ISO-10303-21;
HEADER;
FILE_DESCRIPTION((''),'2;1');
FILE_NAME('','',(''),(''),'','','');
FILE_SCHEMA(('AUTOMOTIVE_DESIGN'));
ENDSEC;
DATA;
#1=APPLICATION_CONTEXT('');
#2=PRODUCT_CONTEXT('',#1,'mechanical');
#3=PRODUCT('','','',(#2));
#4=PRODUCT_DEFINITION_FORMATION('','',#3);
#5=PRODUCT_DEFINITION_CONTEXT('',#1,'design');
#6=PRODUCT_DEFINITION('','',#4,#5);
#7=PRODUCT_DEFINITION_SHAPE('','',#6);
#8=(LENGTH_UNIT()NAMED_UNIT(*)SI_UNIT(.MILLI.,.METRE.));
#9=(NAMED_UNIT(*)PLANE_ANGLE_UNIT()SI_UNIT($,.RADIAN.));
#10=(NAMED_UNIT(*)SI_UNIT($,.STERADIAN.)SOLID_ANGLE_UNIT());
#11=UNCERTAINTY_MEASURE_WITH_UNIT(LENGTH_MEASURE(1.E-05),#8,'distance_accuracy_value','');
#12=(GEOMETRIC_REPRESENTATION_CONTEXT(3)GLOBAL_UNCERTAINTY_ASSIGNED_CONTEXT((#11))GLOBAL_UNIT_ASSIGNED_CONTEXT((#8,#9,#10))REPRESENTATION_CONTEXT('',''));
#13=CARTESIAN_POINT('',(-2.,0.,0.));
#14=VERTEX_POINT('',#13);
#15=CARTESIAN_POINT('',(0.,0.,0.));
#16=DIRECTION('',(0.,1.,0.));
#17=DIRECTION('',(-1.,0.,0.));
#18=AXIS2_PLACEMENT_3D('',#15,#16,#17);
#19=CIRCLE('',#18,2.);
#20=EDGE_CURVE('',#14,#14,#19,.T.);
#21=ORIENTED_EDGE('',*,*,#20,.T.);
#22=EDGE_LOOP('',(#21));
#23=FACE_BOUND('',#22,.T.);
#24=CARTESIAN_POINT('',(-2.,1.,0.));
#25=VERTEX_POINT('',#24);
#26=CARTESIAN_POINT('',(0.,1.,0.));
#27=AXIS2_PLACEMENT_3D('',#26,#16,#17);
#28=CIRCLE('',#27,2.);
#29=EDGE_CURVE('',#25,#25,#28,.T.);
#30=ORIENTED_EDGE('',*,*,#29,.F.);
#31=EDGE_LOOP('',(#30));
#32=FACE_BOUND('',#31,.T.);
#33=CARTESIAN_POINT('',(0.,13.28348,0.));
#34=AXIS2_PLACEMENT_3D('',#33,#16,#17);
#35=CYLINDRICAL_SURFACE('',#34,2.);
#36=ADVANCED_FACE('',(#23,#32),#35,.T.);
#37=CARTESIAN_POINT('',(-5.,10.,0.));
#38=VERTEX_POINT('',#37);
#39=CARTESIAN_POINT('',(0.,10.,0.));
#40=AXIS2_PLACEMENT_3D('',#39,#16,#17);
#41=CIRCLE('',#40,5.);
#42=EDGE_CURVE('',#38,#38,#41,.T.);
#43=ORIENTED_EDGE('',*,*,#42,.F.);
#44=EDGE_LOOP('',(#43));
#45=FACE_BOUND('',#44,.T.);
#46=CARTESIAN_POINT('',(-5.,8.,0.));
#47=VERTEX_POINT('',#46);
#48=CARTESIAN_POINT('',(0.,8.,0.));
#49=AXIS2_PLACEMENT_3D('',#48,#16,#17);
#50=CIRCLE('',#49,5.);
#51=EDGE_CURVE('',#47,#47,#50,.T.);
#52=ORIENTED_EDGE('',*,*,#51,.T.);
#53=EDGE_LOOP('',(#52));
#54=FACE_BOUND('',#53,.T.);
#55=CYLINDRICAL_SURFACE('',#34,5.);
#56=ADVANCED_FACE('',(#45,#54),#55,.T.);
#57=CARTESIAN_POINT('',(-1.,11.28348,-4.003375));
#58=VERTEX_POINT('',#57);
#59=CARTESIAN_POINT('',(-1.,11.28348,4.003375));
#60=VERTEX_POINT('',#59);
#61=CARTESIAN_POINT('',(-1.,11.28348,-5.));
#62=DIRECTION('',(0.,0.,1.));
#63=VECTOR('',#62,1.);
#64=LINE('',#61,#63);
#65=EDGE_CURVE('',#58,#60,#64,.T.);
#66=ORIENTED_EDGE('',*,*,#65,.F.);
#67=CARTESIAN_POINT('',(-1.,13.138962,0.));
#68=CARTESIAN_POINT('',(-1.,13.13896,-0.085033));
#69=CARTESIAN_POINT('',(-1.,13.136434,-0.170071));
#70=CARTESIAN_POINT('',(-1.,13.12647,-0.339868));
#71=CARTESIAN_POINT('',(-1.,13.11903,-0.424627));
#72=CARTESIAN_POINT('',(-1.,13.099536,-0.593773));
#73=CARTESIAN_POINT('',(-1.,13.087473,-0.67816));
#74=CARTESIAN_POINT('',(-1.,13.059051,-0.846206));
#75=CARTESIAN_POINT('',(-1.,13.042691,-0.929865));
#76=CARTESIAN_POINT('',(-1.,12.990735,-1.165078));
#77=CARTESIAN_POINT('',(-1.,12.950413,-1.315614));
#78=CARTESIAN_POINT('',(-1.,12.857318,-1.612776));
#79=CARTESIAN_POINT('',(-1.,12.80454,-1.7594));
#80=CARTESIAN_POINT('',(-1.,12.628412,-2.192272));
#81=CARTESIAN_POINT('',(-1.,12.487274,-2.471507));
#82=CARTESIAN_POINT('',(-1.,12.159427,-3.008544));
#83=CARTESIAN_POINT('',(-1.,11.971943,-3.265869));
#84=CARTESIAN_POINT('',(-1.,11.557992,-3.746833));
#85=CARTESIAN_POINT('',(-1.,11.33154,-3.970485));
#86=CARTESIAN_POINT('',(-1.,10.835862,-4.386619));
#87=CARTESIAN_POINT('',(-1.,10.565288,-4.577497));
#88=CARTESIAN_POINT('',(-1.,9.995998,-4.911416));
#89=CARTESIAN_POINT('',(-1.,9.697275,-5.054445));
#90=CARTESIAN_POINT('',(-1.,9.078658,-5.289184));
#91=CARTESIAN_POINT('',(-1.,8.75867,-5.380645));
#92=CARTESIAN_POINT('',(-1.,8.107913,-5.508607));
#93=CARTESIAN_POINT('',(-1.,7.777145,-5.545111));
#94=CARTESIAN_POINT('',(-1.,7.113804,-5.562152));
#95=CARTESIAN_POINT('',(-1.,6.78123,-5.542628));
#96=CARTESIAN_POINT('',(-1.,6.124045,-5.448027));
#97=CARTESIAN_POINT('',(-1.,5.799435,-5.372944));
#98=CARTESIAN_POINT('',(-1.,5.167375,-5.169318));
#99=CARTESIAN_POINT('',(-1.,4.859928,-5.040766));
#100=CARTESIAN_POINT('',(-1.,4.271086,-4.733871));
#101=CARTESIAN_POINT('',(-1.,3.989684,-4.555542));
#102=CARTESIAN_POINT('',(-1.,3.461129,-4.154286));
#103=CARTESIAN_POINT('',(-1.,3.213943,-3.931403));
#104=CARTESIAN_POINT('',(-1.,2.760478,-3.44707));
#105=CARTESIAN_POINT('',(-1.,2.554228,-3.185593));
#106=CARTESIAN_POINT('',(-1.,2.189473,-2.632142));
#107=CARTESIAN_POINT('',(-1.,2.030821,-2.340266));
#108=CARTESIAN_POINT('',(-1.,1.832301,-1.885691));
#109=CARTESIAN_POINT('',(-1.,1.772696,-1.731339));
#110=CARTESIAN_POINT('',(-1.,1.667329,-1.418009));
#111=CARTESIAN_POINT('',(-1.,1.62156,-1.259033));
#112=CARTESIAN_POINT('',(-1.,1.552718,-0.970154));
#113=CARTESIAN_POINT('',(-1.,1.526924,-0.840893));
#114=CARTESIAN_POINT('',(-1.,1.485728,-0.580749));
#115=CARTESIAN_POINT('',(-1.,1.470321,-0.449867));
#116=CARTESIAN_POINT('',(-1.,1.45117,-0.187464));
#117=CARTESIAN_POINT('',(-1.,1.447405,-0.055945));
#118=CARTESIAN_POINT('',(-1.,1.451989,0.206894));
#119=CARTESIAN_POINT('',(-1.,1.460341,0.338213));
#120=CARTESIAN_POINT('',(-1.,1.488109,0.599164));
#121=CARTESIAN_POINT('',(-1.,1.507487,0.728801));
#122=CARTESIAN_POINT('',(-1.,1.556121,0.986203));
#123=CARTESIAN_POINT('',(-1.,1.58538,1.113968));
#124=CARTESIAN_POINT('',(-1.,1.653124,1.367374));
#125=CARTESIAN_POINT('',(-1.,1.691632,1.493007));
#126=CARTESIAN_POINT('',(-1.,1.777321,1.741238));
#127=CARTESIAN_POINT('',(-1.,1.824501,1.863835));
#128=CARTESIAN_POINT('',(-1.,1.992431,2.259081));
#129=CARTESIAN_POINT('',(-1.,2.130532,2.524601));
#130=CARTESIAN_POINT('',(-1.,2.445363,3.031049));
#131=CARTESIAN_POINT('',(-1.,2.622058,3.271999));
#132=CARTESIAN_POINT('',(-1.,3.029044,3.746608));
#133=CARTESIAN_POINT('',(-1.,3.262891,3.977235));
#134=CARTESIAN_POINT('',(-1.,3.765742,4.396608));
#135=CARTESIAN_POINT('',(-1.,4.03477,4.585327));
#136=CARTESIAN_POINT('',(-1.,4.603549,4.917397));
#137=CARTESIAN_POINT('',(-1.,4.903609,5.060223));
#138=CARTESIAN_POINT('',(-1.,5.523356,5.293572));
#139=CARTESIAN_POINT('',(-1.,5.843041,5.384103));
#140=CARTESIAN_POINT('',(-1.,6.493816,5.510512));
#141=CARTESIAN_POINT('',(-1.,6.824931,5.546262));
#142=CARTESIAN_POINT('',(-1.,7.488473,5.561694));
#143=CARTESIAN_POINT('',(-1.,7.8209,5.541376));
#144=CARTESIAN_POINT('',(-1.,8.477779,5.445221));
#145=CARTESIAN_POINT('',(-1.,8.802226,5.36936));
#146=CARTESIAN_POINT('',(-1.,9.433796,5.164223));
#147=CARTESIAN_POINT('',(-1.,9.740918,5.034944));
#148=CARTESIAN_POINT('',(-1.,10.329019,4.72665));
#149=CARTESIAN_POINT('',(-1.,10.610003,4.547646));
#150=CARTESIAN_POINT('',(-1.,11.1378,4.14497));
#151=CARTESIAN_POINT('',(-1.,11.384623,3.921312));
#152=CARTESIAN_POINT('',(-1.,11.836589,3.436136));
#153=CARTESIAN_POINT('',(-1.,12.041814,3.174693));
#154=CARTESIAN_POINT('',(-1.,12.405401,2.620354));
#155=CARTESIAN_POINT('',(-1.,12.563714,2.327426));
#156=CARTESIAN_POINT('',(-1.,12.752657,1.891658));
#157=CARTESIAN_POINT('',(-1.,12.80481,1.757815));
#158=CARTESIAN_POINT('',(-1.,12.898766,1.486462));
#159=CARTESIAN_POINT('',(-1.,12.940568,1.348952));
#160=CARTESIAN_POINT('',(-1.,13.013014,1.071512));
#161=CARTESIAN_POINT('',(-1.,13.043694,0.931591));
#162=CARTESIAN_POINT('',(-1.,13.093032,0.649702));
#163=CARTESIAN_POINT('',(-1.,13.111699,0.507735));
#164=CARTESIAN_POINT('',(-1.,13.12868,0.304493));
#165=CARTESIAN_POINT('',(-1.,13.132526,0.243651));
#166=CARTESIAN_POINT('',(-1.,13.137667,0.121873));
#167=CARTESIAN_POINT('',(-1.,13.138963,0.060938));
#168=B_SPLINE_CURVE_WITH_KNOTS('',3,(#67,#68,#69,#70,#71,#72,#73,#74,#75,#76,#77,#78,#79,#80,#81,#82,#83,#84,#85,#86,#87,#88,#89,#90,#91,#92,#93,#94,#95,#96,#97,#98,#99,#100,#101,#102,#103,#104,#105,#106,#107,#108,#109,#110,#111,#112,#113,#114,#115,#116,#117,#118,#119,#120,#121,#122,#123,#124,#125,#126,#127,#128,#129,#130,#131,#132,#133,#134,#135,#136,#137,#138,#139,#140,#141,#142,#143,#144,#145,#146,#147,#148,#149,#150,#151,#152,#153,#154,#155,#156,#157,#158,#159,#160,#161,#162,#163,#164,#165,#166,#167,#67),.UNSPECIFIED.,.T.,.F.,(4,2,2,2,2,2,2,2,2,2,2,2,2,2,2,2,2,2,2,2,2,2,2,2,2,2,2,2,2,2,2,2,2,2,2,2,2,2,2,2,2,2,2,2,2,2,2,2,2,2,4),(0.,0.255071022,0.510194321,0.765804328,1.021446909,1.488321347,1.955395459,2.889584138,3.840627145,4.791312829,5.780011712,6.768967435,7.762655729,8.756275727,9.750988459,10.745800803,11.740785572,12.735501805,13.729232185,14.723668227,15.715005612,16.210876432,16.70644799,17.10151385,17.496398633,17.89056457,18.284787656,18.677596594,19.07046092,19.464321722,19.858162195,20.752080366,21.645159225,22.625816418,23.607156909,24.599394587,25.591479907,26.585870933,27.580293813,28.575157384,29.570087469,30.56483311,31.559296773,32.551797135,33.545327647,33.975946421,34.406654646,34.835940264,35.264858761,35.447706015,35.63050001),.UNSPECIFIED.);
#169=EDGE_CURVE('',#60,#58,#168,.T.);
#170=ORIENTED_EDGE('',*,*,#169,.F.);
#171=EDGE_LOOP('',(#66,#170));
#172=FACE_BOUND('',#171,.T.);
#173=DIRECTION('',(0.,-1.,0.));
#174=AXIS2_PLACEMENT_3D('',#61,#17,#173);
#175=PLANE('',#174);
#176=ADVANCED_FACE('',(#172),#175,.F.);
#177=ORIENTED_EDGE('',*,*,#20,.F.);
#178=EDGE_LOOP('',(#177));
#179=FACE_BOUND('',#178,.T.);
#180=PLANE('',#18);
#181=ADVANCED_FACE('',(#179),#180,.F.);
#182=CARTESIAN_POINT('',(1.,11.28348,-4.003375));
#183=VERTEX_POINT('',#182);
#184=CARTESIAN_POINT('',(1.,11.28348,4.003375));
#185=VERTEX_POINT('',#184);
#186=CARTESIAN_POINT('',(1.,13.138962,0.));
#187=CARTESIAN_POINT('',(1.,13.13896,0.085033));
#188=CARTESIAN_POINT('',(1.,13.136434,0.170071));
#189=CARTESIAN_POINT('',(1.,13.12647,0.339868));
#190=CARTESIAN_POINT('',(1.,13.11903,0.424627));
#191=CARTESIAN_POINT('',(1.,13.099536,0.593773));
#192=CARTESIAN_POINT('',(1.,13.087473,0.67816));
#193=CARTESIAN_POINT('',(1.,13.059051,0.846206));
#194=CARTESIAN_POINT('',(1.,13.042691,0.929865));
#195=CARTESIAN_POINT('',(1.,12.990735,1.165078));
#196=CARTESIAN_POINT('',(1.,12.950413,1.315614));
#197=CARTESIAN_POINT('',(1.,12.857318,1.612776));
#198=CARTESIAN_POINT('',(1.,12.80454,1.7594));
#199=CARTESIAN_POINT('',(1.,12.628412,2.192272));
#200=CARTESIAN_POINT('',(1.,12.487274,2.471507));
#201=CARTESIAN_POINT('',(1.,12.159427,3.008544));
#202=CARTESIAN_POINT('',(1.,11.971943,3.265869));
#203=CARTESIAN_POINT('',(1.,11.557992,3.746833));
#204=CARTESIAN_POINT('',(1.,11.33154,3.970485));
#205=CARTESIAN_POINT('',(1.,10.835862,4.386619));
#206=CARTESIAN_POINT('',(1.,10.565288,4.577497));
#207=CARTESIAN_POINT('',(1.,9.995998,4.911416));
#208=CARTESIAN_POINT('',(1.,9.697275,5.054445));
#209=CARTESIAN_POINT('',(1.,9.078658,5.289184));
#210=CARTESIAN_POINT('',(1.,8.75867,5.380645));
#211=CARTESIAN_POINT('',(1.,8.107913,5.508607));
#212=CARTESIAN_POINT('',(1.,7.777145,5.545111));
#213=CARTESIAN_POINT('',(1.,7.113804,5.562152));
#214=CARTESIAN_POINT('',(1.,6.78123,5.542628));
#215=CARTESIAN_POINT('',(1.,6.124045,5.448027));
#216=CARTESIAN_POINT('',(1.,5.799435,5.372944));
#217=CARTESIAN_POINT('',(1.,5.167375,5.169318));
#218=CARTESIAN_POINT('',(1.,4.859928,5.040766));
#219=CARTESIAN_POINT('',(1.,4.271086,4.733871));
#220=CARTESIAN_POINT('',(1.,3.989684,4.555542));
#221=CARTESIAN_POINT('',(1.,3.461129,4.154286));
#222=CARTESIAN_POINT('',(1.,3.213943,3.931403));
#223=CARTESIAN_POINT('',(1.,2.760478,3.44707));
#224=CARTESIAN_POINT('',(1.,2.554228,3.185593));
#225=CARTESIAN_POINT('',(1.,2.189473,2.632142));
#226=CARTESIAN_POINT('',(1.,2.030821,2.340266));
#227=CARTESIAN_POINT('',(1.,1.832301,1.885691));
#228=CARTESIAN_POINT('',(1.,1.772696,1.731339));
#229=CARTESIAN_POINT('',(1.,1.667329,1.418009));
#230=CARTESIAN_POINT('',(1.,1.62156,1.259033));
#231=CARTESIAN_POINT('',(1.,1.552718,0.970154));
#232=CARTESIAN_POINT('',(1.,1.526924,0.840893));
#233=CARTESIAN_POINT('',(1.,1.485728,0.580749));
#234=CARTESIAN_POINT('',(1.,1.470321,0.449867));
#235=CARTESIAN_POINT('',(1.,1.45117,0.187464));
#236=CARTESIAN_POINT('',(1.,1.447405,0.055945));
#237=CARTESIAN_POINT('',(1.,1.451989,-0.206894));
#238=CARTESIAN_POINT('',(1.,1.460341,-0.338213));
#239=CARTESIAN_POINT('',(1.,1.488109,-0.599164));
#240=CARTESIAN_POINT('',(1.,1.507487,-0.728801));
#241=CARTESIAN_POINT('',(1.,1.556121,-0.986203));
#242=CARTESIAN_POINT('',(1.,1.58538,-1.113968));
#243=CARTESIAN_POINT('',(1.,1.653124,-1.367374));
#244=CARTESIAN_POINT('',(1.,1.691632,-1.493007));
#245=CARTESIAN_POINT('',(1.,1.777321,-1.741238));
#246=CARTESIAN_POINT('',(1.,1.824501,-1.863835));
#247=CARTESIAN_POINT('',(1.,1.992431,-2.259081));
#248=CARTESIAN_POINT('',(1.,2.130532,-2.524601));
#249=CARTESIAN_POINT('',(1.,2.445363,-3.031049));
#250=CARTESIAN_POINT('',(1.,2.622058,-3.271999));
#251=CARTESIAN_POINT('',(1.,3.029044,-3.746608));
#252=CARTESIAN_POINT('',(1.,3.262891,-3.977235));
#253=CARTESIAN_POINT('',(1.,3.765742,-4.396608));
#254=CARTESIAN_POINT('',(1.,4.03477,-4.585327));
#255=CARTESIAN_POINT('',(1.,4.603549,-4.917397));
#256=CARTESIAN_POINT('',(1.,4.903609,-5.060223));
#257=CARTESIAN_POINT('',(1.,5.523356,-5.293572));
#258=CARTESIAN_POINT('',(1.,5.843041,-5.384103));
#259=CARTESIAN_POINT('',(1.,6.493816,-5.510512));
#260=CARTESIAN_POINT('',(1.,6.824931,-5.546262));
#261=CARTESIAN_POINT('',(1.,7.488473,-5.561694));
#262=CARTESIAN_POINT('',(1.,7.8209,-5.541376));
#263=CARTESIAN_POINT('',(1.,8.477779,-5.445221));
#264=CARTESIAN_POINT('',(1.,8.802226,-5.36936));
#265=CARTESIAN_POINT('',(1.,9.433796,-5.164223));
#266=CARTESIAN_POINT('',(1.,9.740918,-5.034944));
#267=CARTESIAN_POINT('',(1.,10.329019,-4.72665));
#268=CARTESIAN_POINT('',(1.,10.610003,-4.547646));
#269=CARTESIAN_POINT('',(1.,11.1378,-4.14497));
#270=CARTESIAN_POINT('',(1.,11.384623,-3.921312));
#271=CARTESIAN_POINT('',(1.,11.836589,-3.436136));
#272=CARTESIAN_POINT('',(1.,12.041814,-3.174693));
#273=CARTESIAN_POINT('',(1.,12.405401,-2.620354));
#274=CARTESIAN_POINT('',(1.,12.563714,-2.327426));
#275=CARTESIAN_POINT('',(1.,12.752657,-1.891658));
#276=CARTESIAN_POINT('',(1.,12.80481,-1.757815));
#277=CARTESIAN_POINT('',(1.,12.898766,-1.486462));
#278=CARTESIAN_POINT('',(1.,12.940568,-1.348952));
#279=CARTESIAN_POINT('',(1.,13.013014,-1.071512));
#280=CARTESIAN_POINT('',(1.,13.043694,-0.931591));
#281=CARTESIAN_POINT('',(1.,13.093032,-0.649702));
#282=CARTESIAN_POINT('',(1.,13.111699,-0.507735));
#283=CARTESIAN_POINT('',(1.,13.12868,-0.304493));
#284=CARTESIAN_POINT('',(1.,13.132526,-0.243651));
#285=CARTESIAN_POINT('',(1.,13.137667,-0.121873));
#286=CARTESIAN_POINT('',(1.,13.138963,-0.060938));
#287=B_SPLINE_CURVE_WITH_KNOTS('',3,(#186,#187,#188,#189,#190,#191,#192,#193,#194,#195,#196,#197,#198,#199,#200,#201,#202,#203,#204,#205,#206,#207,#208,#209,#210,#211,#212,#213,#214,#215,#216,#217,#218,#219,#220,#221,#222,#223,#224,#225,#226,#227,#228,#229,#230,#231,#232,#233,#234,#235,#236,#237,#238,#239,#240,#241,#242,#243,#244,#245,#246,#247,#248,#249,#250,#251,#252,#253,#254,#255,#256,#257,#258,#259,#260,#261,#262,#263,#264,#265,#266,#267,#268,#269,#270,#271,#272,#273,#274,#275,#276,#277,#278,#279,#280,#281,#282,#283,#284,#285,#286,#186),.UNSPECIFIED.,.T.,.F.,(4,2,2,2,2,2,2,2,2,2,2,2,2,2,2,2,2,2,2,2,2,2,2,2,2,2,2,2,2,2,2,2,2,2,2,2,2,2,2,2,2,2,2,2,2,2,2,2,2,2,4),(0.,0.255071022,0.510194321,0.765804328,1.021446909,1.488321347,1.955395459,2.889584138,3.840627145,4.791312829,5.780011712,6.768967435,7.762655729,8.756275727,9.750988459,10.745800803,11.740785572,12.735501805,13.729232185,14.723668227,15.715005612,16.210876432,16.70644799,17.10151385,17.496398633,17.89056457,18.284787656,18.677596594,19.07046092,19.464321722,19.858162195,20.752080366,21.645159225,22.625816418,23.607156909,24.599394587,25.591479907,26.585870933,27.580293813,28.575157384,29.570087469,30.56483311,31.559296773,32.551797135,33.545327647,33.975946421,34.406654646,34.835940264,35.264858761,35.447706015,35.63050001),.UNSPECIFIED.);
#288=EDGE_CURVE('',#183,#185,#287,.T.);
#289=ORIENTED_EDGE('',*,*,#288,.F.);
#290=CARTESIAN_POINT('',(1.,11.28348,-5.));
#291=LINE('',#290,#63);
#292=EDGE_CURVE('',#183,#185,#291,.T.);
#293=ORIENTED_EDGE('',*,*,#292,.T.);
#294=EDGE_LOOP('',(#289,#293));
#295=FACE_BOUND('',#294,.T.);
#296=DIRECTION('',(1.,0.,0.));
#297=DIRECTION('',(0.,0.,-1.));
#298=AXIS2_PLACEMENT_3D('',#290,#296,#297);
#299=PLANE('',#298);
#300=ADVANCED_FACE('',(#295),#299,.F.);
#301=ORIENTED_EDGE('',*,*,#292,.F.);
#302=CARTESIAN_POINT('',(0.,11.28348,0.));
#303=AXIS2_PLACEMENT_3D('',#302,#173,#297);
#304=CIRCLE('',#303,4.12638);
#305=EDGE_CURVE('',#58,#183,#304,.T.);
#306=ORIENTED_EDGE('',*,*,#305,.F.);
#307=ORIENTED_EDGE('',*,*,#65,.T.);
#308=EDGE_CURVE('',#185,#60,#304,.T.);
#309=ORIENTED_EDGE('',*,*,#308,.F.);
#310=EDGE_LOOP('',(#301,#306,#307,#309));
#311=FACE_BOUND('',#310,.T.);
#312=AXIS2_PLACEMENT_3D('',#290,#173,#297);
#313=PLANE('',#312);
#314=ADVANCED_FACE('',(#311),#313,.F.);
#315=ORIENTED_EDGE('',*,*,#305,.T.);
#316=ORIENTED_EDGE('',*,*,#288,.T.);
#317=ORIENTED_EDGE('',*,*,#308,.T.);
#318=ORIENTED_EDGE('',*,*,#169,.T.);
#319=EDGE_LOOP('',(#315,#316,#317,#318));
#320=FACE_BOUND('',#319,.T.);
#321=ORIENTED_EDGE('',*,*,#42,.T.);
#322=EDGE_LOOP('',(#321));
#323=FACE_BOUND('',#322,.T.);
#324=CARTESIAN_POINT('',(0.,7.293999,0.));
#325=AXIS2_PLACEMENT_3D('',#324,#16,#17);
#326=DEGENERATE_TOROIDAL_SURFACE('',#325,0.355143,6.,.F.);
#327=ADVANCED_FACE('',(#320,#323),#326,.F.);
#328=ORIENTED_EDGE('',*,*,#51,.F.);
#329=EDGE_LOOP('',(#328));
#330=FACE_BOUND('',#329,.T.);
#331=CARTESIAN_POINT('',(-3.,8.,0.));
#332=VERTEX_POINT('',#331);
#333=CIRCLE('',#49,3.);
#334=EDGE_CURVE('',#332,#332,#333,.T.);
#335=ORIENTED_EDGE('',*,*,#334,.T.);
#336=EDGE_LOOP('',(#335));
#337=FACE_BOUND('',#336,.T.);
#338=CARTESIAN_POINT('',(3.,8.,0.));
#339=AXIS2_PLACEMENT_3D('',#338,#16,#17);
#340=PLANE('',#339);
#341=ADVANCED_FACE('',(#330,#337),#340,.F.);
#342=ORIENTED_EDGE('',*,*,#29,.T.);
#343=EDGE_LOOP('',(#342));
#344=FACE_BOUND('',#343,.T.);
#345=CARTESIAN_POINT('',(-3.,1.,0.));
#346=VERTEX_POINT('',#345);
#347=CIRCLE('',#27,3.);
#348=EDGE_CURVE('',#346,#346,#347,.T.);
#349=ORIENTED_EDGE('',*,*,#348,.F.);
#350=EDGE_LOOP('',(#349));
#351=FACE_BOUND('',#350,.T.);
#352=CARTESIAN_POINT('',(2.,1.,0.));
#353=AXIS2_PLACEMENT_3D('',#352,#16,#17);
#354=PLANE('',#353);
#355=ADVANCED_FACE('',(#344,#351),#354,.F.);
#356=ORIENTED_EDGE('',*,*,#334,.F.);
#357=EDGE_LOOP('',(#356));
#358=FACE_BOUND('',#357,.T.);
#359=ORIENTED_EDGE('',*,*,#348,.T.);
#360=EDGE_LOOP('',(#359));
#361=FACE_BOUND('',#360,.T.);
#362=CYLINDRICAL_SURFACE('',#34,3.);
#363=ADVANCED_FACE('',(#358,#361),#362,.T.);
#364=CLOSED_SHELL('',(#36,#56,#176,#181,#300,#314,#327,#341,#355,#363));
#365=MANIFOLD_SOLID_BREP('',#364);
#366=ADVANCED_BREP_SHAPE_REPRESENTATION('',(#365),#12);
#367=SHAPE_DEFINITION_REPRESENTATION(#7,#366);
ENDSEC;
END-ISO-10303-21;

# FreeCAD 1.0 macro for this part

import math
import FreeCAD as App
import Part
import Sketcher
Q = App.Units.Quantity


def add_polygon(sketch, points):
    """Adds a closed chain of lines whose ends are joined by coincident constraints."""
    first, n = sketch.GeometryCount, len(points)
    for a, b in zip(points, points[1:] + points[:1]):
        sketch.addGeometry(Part.LineSegment(App.Vector(*a, 0), App.Vector(*b, 0)), False)
    for i in range(n):
        sketch.addConstraint(Sketcher.Constraint("Coincident", first + i, 2, first + (i + 1) % n, 1))

doc = App.newDocument("Part")
body = doc.addObject("PartDesign::Body", "Body")

sketch1 = doc.addObject("Sketcher::SketchObject", "Sketch")
body.addObject(sketch1)
sketch1.AttachmentSupport = (doc.XY_Plane, [""])
sketch1.MapMode = "FlatFace"
sketch1.addGeometry(Part.LineSegment(App.Vector(0, 0, 0), App.Vector(2, 0, 0)), False)
sketch1.addGeometry(Part.LineSegment(App.Vector(2, 0, 0), App.Vector(2, 1, 0)), False)
sketch1.addGeometry(Part.LineSegment(App.Vector(2, 1, 0), App.Vector(3, 1, 0)), False)
sketch1.addGeometry(Part.LineSegment(App.Vector(3, 1, 0), App.Vector(3, 8, 0)), False)
sketch1.addGeometry(Part.LineSegment(App.Vector(3, 8, 0), App.Vector(5, 8, 0)), False)
sketch1.addGeometry(Part.LineSegment(App.Vector(5, 8, 0), App.Vector(5, 10, 0)), False)
sketch1.addGeometry(Part.ArcOfCircle(Part.Circle(App.Vector(-0.4, 7.3, 0), App.Vector(0, 0, 1), 6), math.radians(27), math.radians(87)), False)
sketch1.addGeometry(Part.LineSegment(App.Vector(0, 13.3, 0), App.Vector(0, 0, 0)), False)
sketch1.addConstraint(Sketcher.Constraint("Coincident", 0, 2, 1, 1))
sketch1.addConstraint(Sketcher.Constraint("Coincident", 1, 2, 2, 1))
sketch1.addConstraint(Sketcher.Constraint("Coincident", 2, 2, 3, 1))
sketch1.addConstraint(Sketcher.Constraint("Coincident", 3, 2, 4, 1))
sketch1.addConstraint(Sketcher.Constraint("Coincident", 4, 2, 5, 1))
sketch1.addConstraint(Sketcher.Constraint("Coincident", 5, 2, 6, 1))
sketch1.addConstraint(Sketcher.Constraint("Coincident", 6, 2, 7, 1))
sketch1.addConstraint(Sketcher.Constraint("Coincident", 7, 2, 0, 1))
sketch1.addConstraint(Sketcher.Constraint("Horizontal", 0))
sketch1.addConstraint(Sketcher.Constraint("Vertical", 1))
sketch1.addConstraint(Sketcher.Constraint("Horizontal", 2))
sketch1.addConstraint(Sketcher.Constraint("Vertical", 3))
sketch1.addConstraint(Sketcher.Constraint("Horizontal", 4))
sketch1.addConstraint(Sketcher.Constraint("Vertical", 5))
sketch1.addConstraint(Sketcher.Constraint("Vertical", 7))
sketch1.addConstraint(Sketcher.Constraint("Coincident", 7, 2, -1, 1))
sketch1.addConstraint(Sketcher.Constraint("Equal", 0, 4))
sketch1.addConstraint(Sketcher.Constraint("Equal", 2, 1))
sketch1.addConstraint(Sketcher.Constraint("Equal", 4, 5))
sketch1.addConstraint(Sketcher.Constraint("Radius", 6, Q("6 mm")))
sketch1.addConstraint(Sketcher.Constraint("DistanceX", 0, 1, 0, 2, Q("2 mm")))
sketch1.addConstraint(Sketcher.Constraint("DistanceX", 2, 1, 2, 2, Q("1 mm")))
sketch1.addConstraint(Sketcher.Constraint("DistanceY", 3, 1, 3, 2, Q("7 mm")))
sketch1.addConstraint(Sketcher.Constraint("DistanceY", -1, 1, 6, 3, Q("7.293999 mm")))
revolution = doc.addObject("PartDesign::Revolution", "Revolution")
body.addObject(revolution)
revolution.Profile = sketch1
revolution.ReferenceAxis = (sketch1, ["V_Axis"])
revolution.Angle = 360

sketch2 = doc.addObject("Sketcher::SketchObject", "Sketch001")
body.addObject(sketch2)
sketch2.AttachmentSupport = (doc.XY_Plane, [""])
sketch2.MapMode = "FlatFace"
add_polygon(sketch2, [(-1, 15.3), (-1, 11.3), (1, 11.3), (1, 15.3)])
sketch2.addConstraint(Sketcher.Constraint("Vertical", 0))
sketch2.addConstraint(Sketcher.Constraint("Horizontal", 1))
sketch2.addConstraint(Sketcher.Constraint("Vertical", 2))
sketch2.addConstraint(Sketcher.Constraint("Horizontal", 3))
sketch2.addConstraint(Sketcher.Constraint("DistanceX", 1, 1, 1, 2, Q("2 mm")))
sketch2.addConstraint(Sketcher.Constraint("DistanceY", 0, 2, 0, 1, Q("4 mm")))
sketch2.addConstraint(Sketcher.Constraint("DistanceX", 0, 2, -1, 1, Q("1 mm")))
sketch2.addConstraint(Sketcher.Constraint("DistanceY", -1, 1, 0, 2, Q("11.28348 mm")))
pocket1 = doc.addObject("PartDesign::Pocket", "Pocket")
body.addObject(pocket1)
pocket1.Profile = sketch2
pocket1.Type = "ThroughAll"
pocket1.Midplane = True

doc.recompute()
